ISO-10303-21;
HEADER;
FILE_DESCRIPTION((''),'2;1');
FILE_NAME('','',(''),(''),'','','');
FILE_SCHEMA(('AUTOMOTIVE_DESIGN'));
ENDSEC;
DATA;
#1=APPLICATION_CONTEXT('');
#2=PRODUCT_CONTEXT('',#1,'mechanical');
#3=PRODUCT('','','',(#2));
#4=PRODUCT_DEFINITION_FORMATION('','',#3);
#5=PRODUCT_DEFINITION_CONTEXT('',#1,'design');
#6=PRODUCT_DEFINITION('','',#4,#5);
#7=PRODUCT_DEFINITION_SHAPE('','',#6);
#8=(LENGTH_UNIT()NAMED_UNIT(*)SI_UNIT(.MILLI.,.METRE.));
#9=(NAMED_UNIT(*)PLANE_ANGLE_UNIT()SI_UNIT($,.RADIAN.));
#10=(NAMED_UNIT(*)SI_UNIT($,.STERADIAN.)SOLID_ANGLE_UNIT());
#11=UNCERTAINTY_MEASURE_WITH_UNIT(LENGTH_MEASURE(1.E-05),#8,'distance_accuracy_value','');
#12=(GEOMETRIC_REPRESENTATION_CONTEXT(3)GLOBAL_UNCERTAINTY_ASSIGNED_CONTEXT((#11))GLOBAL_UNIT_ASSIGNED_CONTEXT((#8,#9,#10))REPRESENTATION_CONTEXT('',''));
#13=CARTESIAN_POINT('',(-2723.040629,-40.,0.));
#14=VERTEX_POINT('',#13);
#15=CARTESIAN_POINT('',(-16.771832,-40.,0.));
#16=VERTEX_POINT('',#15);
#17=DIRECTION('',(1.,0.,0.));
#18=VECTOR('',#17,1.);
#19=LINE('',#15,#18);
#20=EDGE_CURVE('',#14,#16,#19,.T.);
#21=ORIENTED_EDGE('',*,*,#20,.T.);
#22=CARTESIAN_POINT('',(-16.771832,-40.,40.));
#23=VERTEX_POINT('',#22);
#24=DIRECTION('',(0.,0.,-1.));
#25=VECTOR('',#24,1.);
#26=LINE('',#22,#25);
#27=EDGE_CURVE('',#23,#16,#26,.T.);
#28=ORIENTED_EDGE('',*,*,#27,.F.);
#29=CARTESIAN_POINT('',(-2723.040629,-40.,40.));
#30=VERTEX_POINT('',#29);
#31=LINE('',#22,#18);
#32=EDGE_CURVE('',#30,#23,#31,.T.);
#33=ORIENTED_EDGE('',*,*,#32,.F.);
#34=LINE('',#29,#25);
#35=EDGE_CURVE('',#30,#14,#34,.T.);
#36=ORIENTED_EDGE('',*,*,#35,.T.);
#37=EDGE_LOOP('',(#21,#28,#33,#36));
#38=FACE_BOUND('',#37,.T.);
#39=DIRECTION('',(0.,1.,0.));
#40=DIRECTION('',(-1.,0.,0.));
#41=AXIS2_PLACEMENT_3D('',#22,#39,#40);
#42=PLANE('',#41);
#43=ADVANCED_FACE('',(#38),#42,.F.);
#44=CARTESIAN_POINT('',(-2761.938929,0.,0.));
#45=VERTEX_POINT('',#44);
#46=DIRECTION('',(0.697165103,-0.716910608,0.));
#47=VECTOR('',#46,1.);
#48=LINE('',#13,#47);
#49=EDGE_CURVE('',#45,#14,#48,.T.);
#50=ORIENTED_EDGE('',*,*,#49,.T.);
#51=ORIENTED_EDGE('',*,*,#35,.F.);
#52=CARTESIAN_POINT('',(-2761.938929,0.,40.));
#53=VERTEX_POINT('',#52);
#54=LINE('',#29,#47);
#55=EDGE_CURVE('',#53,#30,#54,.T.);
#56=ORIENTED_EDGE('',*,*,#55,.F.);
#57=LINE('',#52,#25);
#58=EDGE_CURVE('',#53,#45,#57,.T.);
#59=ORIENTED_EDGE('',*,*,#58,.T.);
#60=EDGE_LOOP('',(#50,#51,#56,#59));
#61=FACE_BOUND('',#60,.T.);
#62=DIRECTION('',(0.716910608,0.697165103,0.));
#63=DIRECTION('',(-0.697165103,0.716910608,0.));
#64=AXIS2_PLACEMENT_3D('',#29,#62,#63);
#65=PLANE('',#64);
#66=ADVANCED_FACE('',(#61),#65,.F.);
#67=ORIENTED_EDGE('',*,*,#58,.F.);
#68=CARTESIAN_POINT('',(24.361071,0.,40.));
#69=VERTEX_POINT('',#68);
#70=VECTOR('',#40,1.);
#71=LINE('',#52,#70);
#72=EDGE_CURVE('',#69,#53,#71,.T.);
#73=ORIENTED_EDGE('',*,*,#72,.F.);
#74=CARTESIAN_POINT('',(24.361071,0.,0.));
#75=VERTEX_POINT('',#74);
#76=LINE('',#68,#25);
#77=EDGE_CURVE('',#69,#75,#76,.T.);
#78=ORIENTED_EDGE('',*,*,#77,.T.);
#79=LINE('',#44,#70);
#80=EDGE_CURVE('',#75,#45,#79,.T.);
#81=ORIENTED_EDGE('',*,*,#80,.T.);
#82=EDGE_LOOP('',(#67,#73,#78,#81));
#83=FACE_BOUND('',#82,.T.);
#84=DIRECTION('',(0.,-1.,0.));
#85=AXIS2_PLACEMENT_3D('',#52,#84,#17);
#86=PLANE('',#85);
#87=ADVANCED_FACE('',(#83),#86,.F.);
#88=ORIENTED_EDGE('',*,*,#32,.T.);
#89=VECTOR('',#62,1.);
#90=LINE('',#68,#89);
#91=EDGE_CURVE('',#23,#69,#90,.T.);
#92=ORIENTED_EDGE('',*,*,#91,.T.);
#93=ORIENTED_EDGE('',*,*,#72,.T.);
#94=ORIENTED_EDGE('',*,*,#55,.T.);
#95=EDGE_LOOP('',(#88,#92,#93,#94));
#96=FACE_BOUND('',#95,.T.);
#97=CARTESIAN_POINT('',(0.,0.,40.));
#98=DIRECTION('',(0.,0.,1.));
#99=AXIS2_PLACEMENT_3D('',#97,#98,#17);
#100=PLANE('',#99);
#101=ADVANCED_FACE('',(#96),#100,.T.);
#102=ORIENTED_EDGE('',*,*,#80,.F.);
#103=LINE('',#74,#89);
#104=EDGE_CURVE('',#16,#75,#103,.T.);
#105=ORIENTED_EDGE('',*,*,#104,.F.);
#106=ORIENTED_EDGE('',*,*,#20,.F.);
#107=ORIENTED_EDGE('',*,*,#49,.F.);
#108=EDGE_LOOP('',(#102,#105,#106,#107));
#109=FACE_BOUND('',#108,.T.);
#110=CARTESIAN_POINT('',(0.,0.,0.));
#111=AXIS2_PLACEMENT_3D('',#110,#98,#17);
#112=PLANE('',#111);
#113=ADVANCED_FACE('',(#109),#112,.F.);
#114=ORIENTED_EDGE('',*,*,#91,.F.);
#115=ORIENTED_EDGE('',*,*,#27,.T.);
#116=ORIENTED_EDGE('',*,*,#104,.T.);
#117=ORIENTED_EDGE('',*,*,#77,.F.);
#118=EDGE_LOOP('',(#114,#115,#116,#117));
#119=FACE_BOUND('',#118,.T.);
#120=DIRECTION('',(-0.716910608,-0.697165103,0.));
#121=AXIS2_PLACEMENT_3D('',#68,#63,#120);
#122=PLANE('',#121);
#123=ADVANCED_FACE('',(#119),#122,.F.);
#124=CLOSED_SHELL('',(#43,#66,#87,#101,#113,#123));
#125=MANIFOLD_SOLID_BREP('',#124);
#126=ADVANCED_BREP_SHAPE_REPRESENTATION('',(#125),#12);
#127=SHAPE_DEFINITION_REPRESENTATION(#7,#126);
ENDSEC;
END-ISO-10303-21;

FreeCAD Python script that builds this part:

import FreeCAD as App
import Part
import Sketcher
from FreeCAD import Vector
Q = App.Units.Quantity


def add_polygon(sketch, points):
    """Adds a closed chain of lines whose ends are joined by coincident constraints."""
    first, n = sketch.GeometryCount, len(points)
    for a, b in zip(points, points[1:] + points[:1]):
        sketch.addGeometry(Part.LineSegment(App.Vector(*a, 0), App.Vector(*b, 0)), False)
    for i in range(n):
        sketch.addConstraint(Sketcher.Constraint("Coincident", first + i, 2, first + (i + 1) % n, 1))

doc = App.newDocument("Part")
body = doc.addObject("PartDesign::Body", "Body")

# Sketch on XY plane
sketch1 = body.newObject("Sketcher::SketchObject", "Sketch")
sketch1.AttachmentSupport = (doc.getObject("XY_Plane"), [""])
sketch1.MapMode = "FlatFace"
add_polygon(sketch1, [(24, 0), (-2762, 0), (-2723, -40), (-17, -40)])  # lines 0-3
sketch1.addConstraint(Sketcher.Constraint("Horizontal", 0))
sketch1.addConstraint(Sketcher.Constraint("Horizontal", 2))
sketch1.addConstraint(Sketcher.Constraint("PointOnObject", 0, 2, -1))
sketch1.addConstraint(Sketcher.Constraint("Perpendicular", 1, 3))
sketch1.addConstraint(Sketcher.Constraint("DistanceX", 0, 2, 0, 1, Q("2786.3 mm")))
sketch1.addConstraint(Sketcher.Constraint("DistanceY", 1, 2, -1, 1, Q("40 mm")))
sketch1.addConstraint(Sketcher.Constraint("Angle", 1, Q("-45.8 deg")))
sketch1.addConstraint(Sketcher.Constraint("DistanceX", 0, 2, -1, 1, Q("2761.938929 mm")))
pad1 = body.newObject("PartDesign::Pad", "Pad")
pad1.Profile = sketch1
pad1.Length = 40

doc.recompute()
